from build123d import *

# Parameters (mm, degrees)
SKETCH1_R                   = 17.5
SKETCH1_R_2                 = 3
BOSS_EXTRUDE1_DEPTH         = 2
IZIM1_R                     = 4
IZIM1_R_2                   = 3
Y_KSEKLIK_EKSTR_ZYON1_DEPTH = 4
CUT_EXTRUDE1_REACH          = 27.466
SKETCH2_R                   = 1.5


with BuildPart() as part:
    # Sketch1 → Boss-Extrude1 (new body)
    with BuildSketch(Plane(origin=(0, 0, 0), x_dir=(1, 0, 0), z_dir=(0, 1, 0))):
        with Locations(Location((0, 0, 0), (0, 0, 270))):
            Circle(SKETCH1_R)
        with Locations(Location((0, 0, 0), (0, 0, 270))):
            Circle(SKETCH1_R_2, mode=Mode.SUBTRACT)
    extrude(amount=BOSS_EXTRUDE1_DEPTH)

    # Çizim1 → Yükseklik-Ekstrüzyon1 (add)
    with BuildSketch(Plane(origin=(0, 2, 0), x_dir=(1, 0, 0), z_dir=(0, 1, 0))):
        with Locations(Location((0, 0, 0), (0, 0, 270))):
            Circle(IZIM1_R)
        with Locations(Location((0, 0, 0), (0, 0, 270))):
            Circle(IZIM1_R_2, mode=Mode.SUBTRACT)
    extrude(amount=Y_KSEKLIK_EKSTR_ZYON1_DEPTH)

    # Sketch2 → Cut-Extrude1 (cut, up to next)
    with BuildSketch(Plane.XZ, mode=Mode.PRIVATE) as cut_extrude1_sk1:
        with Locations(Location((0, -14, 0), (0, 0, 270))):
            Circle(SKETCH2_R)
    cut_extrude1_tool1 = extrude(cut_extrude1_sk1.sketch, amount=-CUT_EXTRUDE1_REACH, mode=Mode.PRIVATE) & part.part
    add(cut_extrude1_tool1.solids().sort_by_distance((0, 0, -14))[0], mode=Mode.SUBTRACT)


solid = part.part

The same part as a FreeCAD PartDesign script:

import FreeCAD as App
import Part
import Sketcher

doc = App.newDocument("Part")
body = doc.addObject("PartDesign::Body", "Body")

sketch1 = body.newObject("Sketcher::SketchObject", "Sketch")
sketch1.AttachmentSupport = (doc.getObject("XZ_Plane"), [""])
sketch1.MapMode = "FlatFace"
sketch1.addGeometry([
    Part.Circle(App.Vector(0, 0, 0), App.Vector(0, 0, 1), 17.5),
    Part.Circle(App.Vector(0, 0, 0), App.Vector(0, 0, 1), 3),
], False)
sketch1.addConstraint([
    Sketcher.Constraint("Coincident", 0, 3, -1, 1),
    Sketcher.Constraint("Coincident", 1, 3, -1, 1),
    Sketcher.Constraint("Diameter", 0, 35.0),
    Sketcher.Constraint("Diameter", 1, 6.0),
])
pad1 = body.newObject("PartDesign::Pad", "Pad")
pad1.Profile = sketch1
pad1.Length = 2
pad1.Reversed = True

sketch2 = body.newObject("Sketcher::SketchObject", "Sketch001")
sketch2.AttachmentSupport = (doc.getObject("XZ_Plane"), [""])
sketch2.MapMode = "FlatFace"
sketch2.AttachmentOffset = App.Placement(App.Vector(0, 0, -2), App.Rotation())
sketch2.addGeometry([
    Part.Circle(App.Vector(0, 0, 0), App.Vector(0, 0, 1), 4),
    Part.Circle(App.Vector(0, 0, 0), App.Vector(0, 0, 1), 3),
], False)
sketch2.addConstraint([
    Sketcher.Constraint("Coincident", 0, 3, -1, 1),
    Sketcher.Constraint("Coincident", 1, 3, -1, 1),
    Sketcher.Constraint("Diameter", 0, 8.0),
    Sketcher.Constraint("Diameter", 1, 6.0),
])
pad2 = body.newObject("PartDesign::Pad", "Pad001")
pad2.Profile = sketch2
pad2.Length = 4
pad2.Reversed = True

sketch3 = body.newObject("Sketcher::SketchObject", "Sketch002")
sketch3.AttachmentSupport = (doc.getObject("XZ_Plane"), [""])
sketch3.MapMode = "FlatFace"
sketch3.addGeometry(Part.Circle(App.Vector(0, -14, 0), App.Vector(0, 0, 1), 1.5), False)
sketch3.addConstraint([
    Sketcher.Constraint("PointOnObject", 0, 3, -2),
    Sketcher.Constraint("Diameter", 0, 3.0),
    Sketcher.Constraint("DistanceY", 0, 3, -1, 1, 14.0),
])
pocket1 = body.newObject("PartDesign::Pocket", "Pocket")
pocket1.Profile = sketch3
pocket1.Type = "UpToFirst"

doc.recompute()
